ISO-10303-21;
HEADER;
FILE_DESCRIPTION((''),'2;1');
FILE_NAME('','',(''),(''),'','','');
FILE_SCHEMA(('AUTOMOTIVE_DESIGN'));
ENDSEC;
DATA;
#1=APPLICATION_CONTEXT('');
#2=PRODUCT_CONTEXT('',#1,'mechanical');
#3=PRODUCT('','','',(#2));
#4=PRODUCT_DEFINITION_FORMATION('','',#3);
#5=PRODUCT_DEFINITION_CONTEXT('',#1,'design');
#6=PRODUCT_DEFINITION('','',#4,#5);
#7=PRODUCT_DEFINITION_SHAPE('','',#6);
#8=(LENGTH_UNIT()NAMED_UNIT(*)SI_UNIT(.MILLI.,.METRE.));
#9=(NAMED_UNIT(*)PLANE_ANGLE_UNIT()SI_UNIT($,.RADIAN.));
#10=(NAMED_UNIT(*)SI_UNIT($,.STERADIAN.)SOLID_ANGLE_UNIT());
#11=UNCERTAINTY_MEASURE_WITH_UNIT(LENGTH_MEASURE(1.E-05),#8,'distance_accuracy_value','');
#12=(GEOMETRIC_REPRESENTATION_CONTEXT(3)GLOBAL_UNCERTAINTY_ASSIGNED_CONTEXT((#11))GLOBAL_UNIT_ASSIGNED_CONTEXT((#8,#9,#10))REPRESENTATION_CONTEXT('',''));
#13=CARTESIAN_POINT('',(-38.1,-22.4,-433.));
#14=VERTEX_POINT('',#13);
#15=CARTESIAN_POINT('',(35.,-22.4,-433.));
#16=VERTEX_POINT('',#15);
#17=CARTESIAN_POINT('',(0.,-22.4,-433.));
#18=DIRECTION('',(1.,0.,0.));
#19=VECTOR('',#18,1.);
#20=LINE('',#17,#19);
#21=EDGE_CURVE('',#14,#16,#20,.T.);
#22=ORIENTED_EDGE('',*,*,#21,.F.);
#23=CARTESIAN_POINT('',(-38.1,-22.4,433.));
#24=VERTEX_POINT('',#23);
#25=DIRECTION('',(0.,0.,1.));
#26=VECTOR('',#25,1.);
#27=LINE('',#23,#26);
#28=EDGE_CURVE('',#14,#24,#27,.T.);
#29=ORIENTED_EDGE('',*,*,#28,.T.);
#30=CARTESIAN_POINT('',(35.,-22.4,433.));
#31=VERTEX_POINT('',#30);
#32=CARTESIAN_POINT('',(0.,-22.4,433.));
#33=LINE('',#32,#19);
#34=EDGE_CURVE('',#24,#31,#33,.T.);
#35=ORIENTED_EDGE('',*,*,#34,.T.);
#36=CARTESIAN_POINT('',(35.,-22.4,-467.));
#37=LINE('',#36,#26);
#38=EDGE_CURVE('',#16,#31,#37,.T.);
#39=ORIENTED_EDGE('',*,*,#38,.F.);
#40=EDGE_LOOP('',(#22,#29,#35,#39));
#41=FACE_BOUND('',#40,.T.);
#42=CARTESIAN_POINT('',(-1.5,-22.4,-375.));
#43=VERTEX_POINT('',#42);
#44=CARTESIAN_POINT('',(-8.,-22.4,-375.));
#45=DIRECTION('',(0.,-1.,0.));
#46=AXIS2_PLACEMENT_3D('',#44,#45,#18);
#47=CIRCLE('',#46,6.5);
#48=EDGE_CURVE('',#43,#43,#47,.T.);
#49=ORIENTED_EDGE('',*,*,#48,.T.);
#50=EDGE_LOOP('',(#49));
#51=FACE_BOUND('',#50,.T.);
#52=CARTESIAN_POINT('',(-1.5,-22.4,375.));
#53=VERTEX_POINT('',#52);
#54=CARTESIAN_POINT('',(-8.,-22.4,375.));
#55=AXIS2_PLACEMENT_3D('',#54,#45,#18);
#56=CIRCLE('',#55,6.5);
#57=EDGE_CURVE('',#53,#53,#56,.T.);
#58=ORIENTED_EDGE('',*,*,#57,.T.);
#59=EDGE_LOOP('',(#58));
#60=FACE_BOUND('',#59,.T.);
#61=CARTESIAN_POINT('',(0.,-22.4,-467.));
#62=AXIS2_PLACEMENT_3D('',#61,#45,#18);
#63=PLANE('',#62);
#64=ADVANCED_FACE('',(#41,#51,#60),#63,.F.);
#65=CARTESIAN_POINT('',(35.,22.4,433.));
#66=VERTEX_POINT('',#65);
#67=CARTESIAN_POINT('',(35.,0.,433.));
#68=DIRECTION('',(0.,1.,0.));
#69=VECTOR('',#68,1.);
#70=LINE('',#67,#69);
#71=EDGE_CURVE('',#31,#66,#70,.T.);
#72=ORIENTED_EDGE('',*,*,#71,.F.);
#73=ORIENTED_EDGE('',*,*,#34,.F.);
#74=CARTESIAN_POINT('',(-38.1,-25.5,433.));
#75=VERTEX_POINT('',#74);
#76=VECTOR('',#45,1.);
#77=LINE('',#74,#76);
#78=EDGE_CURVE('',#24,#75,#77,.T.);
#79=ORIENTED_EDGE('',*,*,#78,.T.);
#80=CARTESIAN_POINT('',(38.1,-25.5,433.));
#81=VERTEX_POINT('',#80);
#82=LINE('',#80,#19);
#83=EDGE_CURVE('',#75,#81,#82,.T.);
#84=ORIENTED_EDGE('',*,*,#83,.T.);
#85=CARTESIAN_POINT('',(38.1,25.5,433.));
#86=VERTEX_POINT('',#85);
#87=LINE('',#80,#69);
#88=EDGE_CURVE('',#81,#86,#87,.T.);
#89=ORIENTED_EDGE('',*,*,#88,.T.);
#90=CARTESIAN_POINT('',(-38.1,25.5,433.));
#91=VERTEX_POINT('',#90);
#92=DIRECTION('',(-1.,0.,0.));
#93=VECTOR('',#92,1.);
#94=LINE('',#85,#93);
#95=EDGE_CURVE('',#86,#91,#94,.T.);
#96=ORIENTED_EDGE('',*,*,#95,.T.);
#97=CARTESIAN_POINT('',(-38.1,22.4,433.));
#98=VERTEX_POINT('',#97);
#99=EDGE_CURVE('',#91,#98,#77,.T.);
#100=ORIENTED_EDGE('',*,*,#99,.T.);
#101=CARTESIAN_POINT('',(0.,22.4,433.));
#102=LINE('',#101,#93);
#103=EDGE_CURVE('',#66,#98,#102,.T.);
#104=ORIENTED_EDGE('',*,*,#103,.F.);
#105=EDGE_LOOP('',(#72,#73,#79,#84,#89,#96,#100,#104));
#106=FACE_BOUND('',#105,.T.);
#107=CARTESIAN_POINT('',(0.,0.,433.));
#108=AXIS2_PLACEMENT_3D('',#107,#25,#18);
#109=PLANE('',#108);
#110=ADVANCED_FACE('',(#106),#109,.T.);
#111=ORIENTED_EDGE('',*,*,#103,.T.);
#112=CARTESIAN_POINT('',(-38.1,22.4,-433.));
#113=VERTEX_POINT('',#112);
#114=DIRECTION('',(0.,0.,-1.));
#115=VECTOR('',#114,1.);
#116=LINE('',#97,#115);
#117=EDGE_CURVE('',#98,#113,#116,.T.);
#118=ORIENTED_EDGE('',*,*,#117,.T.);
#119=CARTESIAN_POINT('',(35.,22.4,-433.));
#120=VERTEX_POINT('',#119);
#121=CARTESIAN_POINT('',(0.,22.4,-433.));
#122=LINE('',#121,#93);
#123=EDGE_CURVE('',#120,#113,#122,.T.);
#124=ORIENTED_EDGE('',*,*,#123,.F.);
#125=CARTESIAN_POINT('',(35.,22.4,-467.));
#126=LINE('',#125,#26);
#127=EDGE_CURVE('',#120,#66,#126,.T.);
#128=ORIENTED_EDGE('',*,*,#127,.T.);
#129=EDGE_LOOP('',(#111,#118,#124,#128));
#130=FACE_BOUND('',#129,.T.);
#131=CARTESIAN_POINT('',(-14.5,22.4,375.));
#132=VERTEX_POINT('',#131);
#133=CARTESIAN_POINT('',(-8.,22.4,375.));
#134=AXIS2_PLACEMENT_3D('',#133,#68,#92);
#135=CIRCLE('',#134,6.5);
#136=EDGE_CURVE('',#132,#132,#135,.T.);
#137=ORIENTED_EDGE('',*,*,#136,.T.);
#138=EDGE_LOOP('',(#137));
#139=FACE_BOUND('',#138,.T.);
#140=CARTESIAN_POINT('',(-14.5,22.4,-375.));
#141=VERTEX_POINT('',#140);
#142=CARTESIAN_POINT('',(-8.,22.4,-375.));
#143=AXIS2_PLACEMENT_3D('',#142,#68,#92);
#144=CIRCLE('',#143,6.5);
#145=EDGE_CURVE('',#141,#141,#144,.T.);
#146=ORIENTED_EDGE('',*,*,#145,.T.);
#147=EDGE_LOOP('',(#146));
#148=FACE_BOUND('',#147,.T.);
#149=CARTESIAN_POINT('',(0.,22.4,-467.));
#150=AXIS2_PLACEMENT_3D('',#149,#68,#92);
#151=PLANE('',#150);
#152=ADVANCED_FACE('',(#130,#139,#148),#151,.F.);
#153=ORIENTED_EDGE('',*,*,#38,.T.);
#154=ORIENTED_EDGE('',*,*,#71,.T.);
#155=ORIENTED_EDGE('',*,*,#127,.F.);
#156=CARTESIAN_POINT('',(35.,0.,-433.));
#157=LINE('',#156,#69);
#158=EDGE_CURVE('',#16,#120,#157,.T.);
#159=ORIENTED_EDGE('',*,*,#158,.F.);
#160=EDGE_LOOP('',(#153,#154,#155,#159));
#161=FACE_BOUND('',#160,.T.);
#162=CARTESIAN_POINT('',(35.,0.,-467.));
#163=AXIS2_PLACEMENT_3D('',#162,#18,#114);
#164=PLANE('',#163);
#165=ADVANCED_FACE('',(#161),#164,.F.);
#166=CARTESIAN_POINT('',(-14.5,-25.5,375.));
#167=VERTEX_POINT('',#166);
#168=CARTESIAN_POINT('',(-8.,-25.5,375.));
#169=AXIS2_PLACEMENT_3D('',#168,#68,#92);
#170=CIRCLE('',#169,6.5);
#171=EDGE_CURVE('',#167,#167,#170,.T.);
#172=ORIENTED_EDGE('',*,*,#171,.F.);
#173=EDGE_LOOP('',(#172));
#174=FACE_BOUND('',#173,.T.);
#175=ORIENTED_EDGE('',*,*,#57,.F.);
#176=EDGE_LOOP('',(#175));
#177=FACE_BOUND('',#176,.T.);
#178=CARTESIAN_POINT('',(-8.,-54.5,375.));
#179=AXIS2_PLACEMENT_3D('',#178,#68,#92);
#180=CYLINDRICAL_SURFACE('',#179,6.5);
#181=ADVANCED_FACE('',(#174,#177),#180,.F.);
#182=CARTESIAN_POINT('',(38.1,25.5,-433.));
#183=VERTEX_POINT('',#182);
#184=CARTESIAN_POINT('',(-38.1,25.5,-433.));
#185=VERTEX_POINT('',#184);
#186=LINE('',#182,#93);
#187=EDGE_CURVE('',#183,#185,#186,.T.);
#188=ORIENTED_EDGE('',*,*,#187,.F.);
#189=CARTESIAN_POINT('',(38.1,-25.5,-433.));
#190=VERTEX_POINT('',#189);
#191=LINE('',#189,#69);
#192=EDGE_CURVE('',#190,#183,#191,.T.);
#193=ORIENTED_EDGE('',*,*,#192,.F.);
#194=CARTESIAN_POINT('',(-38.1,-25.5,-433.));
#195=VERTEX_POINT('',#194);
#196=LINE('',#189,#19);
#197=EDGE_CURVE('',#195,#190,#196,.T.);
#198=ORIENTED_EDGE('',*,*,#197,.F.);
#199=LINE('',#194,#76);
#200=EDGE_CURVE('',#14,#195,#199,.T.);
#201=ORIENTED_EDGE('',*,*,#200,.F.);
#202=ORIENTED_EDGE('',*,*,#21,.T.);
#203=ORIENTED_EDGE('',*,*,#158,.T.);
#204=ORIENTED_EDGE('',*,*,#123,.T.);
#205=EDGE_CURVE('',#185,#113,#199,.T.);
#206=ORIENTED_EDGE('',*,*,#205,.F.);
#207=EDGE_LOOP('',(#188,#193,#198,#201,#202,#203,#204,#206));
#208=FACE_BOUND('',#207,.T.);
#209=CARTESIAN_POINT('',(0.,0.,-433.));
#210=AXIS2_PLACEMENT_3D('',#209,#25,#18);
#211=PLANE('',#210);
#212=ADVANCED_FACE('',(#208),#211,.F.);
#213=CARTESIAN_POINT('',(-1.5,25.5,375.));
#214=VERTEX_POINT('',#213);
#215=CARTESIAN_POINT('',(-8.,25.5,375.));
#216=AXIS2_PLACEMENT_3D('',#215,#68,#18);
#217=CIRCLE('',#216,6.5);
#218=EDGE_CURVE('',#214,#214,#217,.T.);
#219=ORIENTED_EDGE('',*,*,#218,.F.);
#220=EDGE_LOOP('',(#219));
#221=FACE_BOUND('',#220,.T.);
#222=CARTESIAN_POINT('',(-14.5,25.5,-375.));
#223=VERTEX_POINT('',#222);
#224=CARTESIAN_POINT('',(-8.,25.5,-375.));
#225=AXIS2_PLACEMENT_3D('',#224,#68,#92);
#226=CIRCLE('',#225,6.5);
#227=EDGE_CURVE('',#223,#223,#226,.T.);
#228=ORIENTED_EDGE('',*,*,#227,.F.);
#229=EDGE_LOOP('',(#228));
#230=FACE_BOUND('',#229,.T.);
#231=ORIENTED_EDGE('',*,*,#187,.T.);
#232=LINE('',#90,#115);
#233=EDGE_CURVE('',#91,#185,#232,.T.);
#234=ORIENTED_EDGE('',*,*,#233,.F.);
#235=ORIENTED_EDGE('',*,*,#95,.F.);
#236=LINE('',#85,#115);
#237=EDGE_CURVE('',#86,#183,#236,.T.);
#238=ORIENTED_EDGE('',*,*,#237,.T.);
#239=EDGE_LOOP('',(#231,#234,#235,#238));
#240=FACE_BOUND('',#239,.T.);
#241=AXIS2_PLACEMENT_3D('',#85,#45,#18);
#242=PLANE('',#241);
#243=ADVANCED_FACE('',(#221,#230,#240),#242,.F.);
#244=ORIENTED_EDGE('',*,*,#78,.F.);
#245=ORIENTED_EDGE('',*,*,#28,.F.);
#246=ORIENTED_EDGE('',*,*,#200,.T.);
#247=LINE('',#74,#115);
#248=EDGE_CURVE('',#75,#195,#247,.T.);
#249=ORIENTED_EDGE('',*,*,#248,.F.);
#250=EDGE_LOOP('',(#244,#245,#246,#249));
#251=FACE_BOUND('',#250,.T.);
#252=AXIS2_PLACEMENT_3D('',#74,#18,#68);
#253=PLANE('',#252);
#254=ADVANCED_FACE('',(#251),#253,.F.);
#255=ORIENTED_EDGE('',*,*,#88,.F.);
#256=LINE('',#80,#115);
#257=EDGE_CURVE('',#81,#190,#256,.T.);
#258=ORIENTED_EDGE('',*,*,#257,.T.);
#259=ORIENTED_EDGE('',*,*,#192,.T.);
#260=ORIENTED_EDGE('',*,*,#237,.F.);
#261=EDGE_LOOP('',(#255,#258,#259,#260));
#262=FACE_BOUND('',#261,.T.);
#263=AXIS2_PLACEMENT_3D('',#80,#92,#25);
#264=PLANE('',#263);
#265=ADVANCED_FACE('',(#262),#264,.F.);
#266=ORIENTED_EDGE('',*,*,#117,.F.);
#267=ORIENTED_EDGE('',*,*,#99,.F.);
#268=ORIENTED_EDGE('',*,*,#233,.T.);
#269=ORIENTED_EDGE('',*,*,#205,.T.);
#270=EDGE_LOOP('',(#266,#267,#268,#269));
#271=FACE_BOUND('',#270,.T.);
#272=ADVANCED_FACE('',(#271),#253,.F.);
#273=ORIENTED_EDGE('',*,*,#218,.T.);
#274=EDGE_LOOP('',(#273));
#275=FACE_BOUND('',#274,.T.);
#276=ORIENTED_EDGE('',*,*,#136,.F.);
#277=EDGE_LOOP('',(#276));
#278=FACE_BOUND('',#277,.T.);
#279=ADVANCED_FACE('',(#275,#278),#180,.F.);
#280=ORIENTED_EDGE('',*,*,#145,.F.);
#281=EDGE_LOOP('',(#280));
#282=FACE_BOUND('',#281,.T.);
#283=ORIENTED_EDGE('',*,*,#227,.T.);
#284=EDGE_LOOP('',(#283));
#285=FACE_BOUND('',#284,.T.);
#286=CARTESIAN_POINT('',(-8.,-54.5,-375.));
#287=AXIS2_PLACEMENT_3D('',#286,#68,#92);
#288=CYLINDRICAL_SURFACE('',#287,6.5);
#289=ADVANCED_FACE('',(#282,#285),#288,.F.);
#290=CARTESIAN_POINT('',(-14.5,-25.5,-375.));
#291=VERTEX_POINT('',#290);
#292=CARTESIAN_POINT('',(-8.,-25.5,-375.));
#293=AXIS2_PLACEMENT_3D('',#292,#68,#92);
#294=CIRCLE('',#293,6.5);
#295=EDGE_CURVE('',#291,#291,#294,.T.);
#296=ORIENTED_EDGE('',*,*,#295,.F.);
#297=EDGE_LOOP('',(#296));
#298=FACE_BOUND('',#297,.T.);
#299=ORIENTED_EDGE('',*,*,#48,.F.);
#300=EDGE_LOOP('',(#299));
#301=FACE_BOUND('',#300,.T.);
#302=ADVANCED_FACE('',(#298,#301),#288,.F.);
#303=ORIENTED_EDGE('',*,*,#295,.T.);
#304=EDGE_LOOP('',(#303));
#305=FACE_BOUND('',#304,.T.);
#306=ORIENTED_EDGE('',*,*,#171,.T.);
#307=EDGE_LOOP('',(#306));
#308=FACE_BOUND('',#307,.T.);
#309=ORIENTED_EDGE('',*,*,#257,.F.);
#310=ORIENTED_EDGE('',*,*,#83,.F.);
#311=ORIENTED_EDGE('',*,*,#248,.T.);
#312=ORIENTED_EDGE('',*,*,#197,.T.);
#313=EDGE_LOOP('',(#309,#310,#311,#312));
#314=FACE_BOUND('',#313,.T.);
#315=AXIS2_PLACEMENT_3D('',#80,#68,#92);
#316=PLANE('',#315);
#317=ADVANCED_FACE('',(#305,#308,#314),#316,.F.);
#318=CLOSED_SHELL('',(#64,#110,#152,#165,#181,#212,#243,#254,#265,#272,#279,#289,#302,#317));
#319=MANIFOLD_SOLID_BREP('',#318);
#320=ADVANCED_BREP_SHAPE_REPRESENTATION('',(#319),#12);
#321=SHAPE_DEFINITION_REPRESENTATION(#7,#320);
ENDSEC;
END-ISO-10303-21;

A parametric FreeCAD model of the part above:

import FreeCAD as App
import Part
import Sketcher

V = App.Vector
Q = App.Units.Quantity

doc = App.newDocument("Part")
body = doc.addObject("PartDesign::Body", "Body")

sketch1 = body.newObject("Sketcher::SketchObject", "Sketch")
sketch1.AttachmentSupport = (doc.getObject("XY_Plane"), [""])
sketch1.MapMode = "FlatFace"
sketch1.addGeometry([
    Part.LineSegment(V(-38, 26, 0), V(-38, -26, 0)),
    Part.LineSegment(V(-38, -26, 0), V(38, -26, 0)),
    Part.LineSegment(V(38, -26, 0), V(38, 26, 0)),
    Part.LineSegment(V(38, 26, 0), V(-38, 26, 0)),
], False)
sketch1.addConstraint([
    Sketcher.Constraint("Coincident", 0, 2, 1, 1),
    Sketcher.Constraint("Coincident", 1, 2, 2, 1),
    Sketcher.Constraint("Coincident", 2, 2, 3, 1),
    Sketcher.Constraint("Coincident", 3, 2, 0, 1),
    Sketcher.Constraint("Vertical", 0),
    Sketcher.Constraint("Horizontal", 1),
    Sketcher.Constraint("Vertical", 2),
    Sketcher.Constraint("Horizontal", 3),
    Sketcher.Constraint("Symmetric", 0, 2, 2, 2, -1, 1),
    Sketcher.Constraint("DistanceY", 0, 2, 0, 1, Q("51 mm")),
    Sketcher.Constraint("DistanceX", 1, 1, 1, 2, Q("76.2 mm")),
])
pad1 = body.newObject("PartDesign::Pad", "Pad")
pad1.Profile = sketch1
pad1.Length = 866
pad1.Midplane = True

sketch2 = body.newObject("Sketcher::SketchObject", "Sketch001")
sketch2.AttachmentSupport = (doc.getObject("XY_Plane"), [""])
sketch2.MapMode = "FlatFace"
sketch2.AttachmentOffset = App.Placement(V(0, 0, 433), App.Rotation())
sketch2.addGeometry([
    Part.LineSegment(V(-35, 22, 0), V(-35, -22, 0)),
    Part.LineSegment(V(-35, -22, 0), V(35, -22, 0)),
    Part.LineSegment(V(35, -22, 0), V(35, 22, 0)),
    Part.LineSegment(V(35, 22, 0), V(-35, 22, 0)),
], False)
sketch2.addConstraint([
    Sketcher.Constraint("Coincident", 0, 2, 1, 1),
    Sketcher.Constraint("Coincident", 1, 2, 2, 1),
    Sketcher.Constraint("Coincident", 2, 2, 3, 1),
    Sketcher.Constraint("Coincident", 3, 2, 0, 1),
    Sketcher.Constraint("Vertical", 0),
    Sketcher.Constraint("Horizontal", 1),
    Sketcher.Constraint("Vertical", 2),
    Sketcher.Constraint("Horizontal", 3),
    Sketcher.Constraint("Symmetric", 0, 2, 2, 2, -1, 1),
    Sketcher.Constraint("DistanceX", 1, 1, 1, 2, Q("70 mm")),
    Sketcher.Constraint("DistanceY", 0, 2, 0, 1, Q("44.8 mm")),
])
pocket1 = body.newObject("PartDesign::Pocket", "Pocket")
pocket1.Profile = sketch2
pocket1.Length = 900

sketch3 = body.newObject("Sketcher::SketchObject", "Sketch002")
sketch3.AttachmentSupport = (doc.getObject("YZ_Plane"), [""])
sketch3.MapMode = "FlatFace"
sketch3.AttachmentOffset = App.Placement(V(0, 0, -38.1), App.Rotation())
sketch3.addGeometry([
    Part.LineSegment(V(22, -433, 0), V(-22, -433, 0)),
    Part.LineSegment(V(-22, -433, 0), V(-22, 433, 0)),
    Part.LineSegment(V(-22, 433, 0), V(22, 433, 0)),
    Part.LineSegment(V(22, 433, 0), V(22, -433, 0)),
], False)
sketch3.addConstraint([
    Sketcher.Constraint("Coincident", 0, 2, 1, 1),
    Sketcher.Constraint("Coincident", 1, 2, 2, 1),
    Sketcher.Constraint("Coincident", 2, 2, 3, 1),
    Sketcher.Constraint("Coincident", 3, 2, 0, 1),
    Sketcher.Constraint("Horizontal", 0),
    Sketcher.Constraint("Vertical", 1),
    Sketcher.Constraint("Horizontal", 2),
    Sketcher.Constraint("Vertical", 3),
    Sketcher.Constraint("Symmetric", 0, 2, 2, 2, -1, 1),
    Sketcher.Constraint("DistanceY", 1, 1, 1, 2, Q("866 mm")),
    Sketcher.Constraint("DistanceX", 0, 2, 0, 1, Q("44.8 mm")),
])
pocket2 = body.newObject("PartDesign::Pocket", "Pocket001")
pocket2.Profile = sketch3
pocket2.Length = 20
pocket2.Reversed = True

sketch4 = body.newObject("Sketcher::SketchObject", "Sketch003")
sketch4.AttachmentSupport = (doc.getObject("XZ_Plane"), [""])
sketch4.MapMode = "FlatFace"
sketch4.AttachmentOffset = App.Placement(V(0, 0, -25.5), App.Rotation())
sketch4.addGeometry([
    Part.Circle(V(-8, -375, 0), V(0, 0, 1), 6),
    Part.Circle(V(-8, 375, 0), V(0, 0, 1), 6),
], False)
sketch4.addConstraint([
    Sketcher.Constraint("Equal", 0, 1),
    Sketcher.Constraint("Symmetric", 0, 3, 1, 3, -1),
    Sketcher.Constraint("Diameter", 0, Q("13 mm")),
    Sketcher.Constraint("DistanceX", 0, 3, -1, 1, Q("8 mm")),
    Sketcher.Constraint("DistanceY", 0, 3, -1, 1, Q("375 mm")),
])
pocket3 = body.newObject("PartDesign::Pocket", "Pocket002")
pocket3.Profile = sketch4
pocket3.Length = 80
pocket3.Reversed = True

doc.recompute()
